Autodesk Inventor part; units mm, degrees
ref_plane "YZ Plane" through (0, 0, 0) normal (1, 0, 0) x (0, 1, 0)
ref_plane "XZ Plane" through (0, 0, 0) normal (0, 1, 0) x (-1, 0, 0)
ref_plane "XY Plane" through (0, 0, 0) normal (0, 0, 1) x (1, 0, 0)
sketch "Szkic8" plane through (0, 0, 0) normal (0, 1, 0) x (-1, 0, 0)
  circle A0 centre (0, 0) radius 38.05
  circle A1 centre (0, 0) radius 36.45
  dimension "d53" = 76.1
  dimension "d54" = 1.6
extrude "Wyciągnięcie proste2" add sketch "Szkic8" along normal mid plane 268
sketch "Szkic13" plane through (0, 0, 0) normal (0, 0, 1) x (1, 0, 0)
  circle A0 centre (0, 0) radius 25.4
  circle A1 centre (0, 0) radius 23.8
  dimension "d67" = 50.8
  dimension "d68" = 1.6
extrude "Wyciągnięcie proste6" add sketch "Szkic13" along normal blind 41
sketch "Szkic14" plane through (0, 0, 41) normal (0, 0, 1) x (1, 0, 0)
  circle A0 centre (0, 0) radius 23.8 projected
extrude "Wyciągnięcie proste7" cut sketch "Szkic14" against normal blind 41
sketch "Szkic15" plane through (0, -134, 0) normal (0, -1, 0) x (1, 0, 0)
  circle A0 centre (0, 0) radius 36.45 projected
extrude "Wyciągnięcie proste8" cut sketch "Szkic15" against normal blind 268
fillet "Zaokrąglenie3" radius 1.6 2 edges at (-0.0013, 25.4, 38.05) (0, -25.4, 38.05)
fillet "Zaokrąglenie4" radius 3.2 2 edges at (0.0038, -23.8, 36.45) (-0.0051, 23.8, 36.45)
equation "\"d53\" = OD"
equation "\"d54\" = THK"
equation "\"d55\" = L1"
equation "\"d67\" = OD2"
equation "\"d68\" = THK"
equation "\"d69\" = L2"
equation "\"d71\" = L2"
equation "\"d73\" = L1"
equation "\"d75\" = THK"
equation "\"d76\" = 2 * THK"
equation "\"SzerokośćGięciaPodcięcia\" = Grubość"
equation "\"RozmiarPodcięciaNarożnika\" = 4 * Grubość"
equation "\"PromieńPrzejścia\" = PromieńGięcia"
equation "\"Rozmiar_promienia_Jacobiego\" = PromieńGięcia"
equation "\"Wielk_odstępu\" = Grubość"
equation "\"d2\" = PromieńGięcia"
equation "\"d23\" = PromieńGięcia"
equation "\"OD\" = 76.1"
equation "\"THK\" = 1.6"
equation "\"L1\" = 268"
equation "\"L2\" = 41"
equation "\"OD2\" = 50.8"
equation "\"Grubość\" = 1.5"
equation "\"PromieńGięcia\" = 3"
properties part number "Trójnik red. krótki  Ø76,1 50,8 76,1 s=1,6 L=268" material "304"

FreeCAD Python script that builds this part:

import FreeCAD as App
import Part
import Sketcher

V = App.Vector


def edges_at(feature, points):
    """Names of the edges that pass closest to the given points."""
    edges = feature.Shape.Edges
    near = lambda p: min(range(len(edges)), key=lambda i: edges[i].distToShape(Part.Vertex(*p))[0])
    return sorted({f"Edge{near(p) + 1}" for p in points})

doc = App.newDocument("Part")
body = doc.addObject("PartDesign::Body", "Body")

sketch1 = body.newObject("Sketcher::SketchObject", "Sketch")
sketch1.AttachmentSupport = (doc.getObject("XZ_Plane"), [""])
sketch1.MapMode = "FlatFace"
sketch1.addGeometry([
    Part.Circle(V(0, 0, 0), V(0, 0, 1), 38),
    Part.Circle(V(0, 0, 0), V(0, 0, 1), 36),
], False)
sketch1.addConstraint([
    Sketcher.Constraint("Coincident", 0, 3, -1, 1),
    Sketcher.Constraint("Coincident", 1, 3, -1, 1),
    Sketcher.Constraint("Diameter", 0, 76.1),
    Sketcher.Constraint("Diameter", 1, 72.9),
])
pad1 = body.newObject("PartDesign::Pad", "Pad")
pad1.Profile = sketch1
pad1.Length = 268
pad1.Midplane = True

sketch2 = body.newObject("Sketcher::SketchObject", "Sketch001")
sketch2.AttachmentSupport = (doc.getObject("XY_Plane"), [""])
sketch2.MapMode = "FlatFace"
sketch2.addGeometry([
    Part.Circle(V(0, 0, 0), V(0, 0, 1), 25),
    Part.Circle(V(0, 0, 0), V(0, 0, 1), 24),
], False)
sketch2.addConstraint([
    Sketcher.Constraint("Coincident", 0, 3, -1, 1),
    Sketcher.Constraint("Coincident", 1, 3, -1, 1),
    Sketcher.Constraint("Diameter", 0, 50.8),
    Sketcher.Constraint("Diameter", 1, 47.6),
])
pad2 = body.newObject("PartDesign::Pad", "Pad001")
pad2.Profile = sketch2
pad2.Length = 41

sketch3 = body.newObject("Sketcher::SketchObject", "Sketch002")
sketch3.AttachmentSupport = (doc.getObject("XY_Plane"), [""])
sketch3.MapMode = "FlatFace"
sketch3.AttachmentOffset = App.Placement(V(0, 0, 41), App.Rotation())
sketch3.addGeometry(Part.Circle(V(0, 0, 0), V(0, 0, 1), 24), False)
sketch3.addConstraint([
    Sketcher.Constraint("Coincident", 0, 3, -1, 1),
    Sketcher.Constraint("Diameter", 0, 47.6),
])
pocket1 = body.newObject("PartDesign::Pocket", "Pocket")
pocket1.Profile = sketch3
pocket1.Length = 41

sketch4 = body.newObject("Sketcher::SketchObject", "Sketch003")
sketch4.AttachmentSupport = (doc.getObject("XZ_Plane"), [""])
sketch4.MapMode = "FlatFace"
sketch4.AttachmentOffset = App.Placement(V(0, 0, 134), App.Rotation())
sketch4.addGeometry(Part.Circle(V(0, 0, 0), V(0, 0, 1), 36), False)
sketch4.addConstraint([
    Sketcher.Constraint("Coincident", 0, 3, -1, 1),
    Sketcher.Constraint("Diameter", 0, 72.9),
])
pocket2 = body.newObject("PartDesign::Pocket", "Pocket001")
pocket2.Profile = sketch4
pocket2.Length = 268
doc.recompute()

fillet = body.newObject("PartDesign::Fillet", "Fillet")
fillet.Base = (pocket2, edges_at(pocket2, [(-0.001, 25.4, 38.05), (0, -25.4, 38.05)]))
fillet.Radius = 1.6
doc.recompute()

fillet2 = body.newObject("PartDesign::Fillet", "Fillet001")
fillet2.Base = (fillet, edges_at(fillet, [(0.004, -23.8, 36.45), (-0.005, 23.8, 36.45)]))
fillet2.Radius = 3.2

doc.recompute()
